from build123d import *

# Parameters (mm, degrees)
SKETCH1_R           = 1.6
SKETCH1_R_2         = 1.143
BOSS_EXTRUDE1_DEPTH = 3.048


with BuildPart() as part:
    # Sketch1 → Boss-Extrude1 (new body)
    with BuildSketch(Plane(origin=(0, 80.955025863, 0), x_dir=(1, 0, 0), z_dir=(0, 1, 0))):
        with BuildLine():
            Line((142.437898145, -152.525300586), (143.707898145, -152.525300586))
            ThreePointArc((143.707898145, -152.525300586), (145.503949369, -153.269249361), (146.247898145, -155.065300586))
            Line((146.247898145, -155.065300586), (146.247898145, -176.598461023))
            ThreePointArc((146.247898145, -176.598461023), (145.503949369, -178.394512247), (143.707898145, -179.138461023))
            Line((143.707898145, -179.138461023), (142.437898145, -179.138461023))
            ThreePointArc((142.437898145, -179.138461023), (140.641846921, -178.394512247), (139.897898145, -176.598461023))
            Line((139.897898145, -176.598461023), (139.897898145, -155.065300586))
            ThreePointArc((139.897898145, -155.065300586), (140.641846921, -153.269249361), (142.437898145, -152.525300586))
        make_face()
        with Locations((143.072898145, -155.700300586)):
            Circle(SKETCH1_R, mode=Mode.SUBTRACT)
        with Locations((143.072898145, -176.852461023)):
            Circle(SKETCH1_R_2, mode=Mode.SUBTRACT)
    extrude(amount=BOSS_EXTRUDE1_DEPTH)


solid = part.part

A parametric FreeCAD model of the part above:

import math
import FreeCAD as App
import Part
import Sketcher
Q = App.Units.Quantity

doc = App.newDocument("Part")
body = doc.addObject("PartDesign::Body", "Body")

# Sketch on XZ plane
sketch1 = doc.addObject("Sketcher::SketchObject", "Sketch")
body.addObject(sketch1)
sketch1.AttachmentSupport = (doc.XZ_Plane, [""])
sketch1.MapMode = "FlatFace"
sketch1.AttachmentOffset = App.Placement(App.Vector(0, 0, -80.955026), App.Rotation())
sketch1.addGeometry([
    Part.LineSegment(App.Vector(143.7, 152.5, 0), App.Vector(142.4, 152.5, 0)),  # 0
    Part.ArcOfCircle(Part.Circle(App.Vector(142.4, 155.1, 0), App.Vector(0, 0, 1), 2.5), math.radians(180), math.radians(270)),  # 1
    Part.LineSegment(App.Vector(139.9, 155.1, 0), App.Vector(139.9, 176.6, 0)),  # 2
    Part.ArcOfCircle(Part.Circle(App.Vector(142.4, 176.6, 0), App.Vector(0, 0, 1), 2.5), math.radians(90), math.radians(180)),  # 3
    Part.LineSegment(App.Vector(142.4, 179.1, 0), App.Vector(143.7, 179.1, 0)),  # 4
    Part.ArcOfCircle(Part.Circle(App.Vector(143.7, 176.6, 0), App.Vector(0, 0, 1), 2.5), math.radians(0), math.radians(90)),  # 5
    Part.LineSegment(App.Vector(146.2, 176.6, 0), App.Vector(146.2, 155.1, 0)),  # 6
    Part.ArcOfCircle(Part.Circle(App.Vector(143.7, 155.1, 0), App.Vector(0, 0, 1), 2.5), math.radians(-90), math.radians(0)),  # 7
    Part.Circle(App.Vector(143.1, 176.9, 0), App.Vector(0, 0, 1), 1.1),  # 8
    Part.Circle(App.Vector(143.1, 155.7, 0), App.Vector(0, 0, 1), 1.6),  # 9
], False)
sketch1.addConstraint([
    Sketcher.Constraint("Tangent", 0, 2, 1, 2),
    Sketcher.Constraint("Tangent", 1, 1, 2, 1),
    Sketcher.Constraint("Tangent", 2, 2, 3, 2),
    Sketcher.Constraint("Tangent", 3, 1, 4, 1),
    Sketcher.Constraint("Tangent", 4, 2, 5, 2),
    Sketcher.Constraint("Tangent", 5, 1, 6, 1),
    Sketcher.Constraint("Tangent", 6, 2, 7, 2),
    Sketcher.Constraint("Tangent", 7, 1, 0, 1),
    Sketcher.Constraint("Horizontal", 0),
    Sketcher.Constraint("Vertical", 2),
    Sketcher.Constraint("Horizontal", 4),
    Sketcher.Constraint("Vertical", 6),
    Sketcher.Constraint("Equal", 1, 3),
    Sketcher.Constraint("Equal", 3, 5),
    Sketcher.Constraint("Equal", 5, 7),
    Sketcher.Constraint("Vertical", 8, 3, 9, 3),
    Sketcher.Constraint("Radius", 1, Q("0.1 in")),
    Sketcher.Constraint("Diameter", 8, Q("0.09 in")),
    Sketcher.Constraint("DistanceX", 0, 2, 0, 1, Q("0.05 in")),
    Sketcher.Constraint("Diameter", 9, Q("3.2 mm")),
    Sketcher.Constraint("DistanceY", 3, 3, 8, 3, Q("0.01 in")),
    Sketcher.Constraint("DistanceX", 3, 3, 8, 3, Q("0.025 in")),
    Sketcher.Constraint("DistanceY", 7, 3, 9, 3, Q("0.025 in")),
    Sketcher.Constraint("DistanceY", 2, 1, 2, 2, Q("21.53316 mm")),
    Sketcher.Constraint("DistanceX", -1, 1, 1, 3, Q("142.437898 mm")),
    Sketcher.Constraint("DistanceY", -1, 1, 1, 3, Q("155.065301 mm")),
])
pad1 = doc.addObject("PartDesign::Pad", "Pad")
body.addObject(pad1)
pad1.Profile = sketch1
pad1.Length = Q("0.12 in")
pad1.Reversed = True

doc.recompute()
